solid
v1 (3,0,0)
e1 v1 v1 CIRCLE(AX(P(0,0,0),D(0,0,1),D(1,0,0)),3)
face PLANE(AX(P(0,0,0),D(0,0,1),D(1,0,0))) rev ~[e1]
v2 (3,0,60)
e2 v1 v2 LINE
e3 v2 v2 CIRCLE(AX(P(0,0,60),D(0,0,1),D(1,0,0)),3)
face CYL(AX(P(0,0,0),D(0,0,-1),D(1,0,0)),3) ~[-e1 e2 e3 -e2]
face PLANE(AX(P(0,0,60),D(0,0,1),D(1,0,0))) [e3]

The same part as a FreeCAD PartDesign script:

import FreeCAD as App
import Part
import Sketcher
Q = App.Units.Quantity

doc = App.newDocument("Part")
params = doc.addObject("Spreadsheet::Sheet", "Params")
for row, (alias, value) in enumerate([
    ("sketch1_diameter", "6 mm"),
    ("pad1_length", "60 mm"),
], start=1):
    params.set(f"A{row}", alias)
    params.set(f"B{row}", "=" + value)
    params.setAlias(f"B{row}", alias)

body = doc.addObject("PartDesign::Body", "Body")

# Sketch on XY plane
sketch1 = doc.addObject("Sketcher::SketchObject", "Sketch")
body.addObject(sketch1)
sketch1.AttachmentSupport = (doc.XY_Plane, [""])
sketch1.MapMode = "FlatFace"
sketch1.addGeometry(Part.Circle(App.Vector(0, 0, 0), App.Vector(0, 0, 1), 3), False)
sketch1.addConstraint([
    Sketcher.Constraint("Coincident", 0, 3, -1, 1),
    Sketcher.Constraint("Diameter", 0, Q("6 mm")),
])
sketch1.setExpression("Constraints[1]", "Params.sketch1_diameter")
pad1 = doc.addObject("PartDesign::Pad", "Pad")
body.addObject(pad1)
pad1.Profile = sketch1
pad1.setExpression("Length", "Params.pad1_length")

doc.recompute()
